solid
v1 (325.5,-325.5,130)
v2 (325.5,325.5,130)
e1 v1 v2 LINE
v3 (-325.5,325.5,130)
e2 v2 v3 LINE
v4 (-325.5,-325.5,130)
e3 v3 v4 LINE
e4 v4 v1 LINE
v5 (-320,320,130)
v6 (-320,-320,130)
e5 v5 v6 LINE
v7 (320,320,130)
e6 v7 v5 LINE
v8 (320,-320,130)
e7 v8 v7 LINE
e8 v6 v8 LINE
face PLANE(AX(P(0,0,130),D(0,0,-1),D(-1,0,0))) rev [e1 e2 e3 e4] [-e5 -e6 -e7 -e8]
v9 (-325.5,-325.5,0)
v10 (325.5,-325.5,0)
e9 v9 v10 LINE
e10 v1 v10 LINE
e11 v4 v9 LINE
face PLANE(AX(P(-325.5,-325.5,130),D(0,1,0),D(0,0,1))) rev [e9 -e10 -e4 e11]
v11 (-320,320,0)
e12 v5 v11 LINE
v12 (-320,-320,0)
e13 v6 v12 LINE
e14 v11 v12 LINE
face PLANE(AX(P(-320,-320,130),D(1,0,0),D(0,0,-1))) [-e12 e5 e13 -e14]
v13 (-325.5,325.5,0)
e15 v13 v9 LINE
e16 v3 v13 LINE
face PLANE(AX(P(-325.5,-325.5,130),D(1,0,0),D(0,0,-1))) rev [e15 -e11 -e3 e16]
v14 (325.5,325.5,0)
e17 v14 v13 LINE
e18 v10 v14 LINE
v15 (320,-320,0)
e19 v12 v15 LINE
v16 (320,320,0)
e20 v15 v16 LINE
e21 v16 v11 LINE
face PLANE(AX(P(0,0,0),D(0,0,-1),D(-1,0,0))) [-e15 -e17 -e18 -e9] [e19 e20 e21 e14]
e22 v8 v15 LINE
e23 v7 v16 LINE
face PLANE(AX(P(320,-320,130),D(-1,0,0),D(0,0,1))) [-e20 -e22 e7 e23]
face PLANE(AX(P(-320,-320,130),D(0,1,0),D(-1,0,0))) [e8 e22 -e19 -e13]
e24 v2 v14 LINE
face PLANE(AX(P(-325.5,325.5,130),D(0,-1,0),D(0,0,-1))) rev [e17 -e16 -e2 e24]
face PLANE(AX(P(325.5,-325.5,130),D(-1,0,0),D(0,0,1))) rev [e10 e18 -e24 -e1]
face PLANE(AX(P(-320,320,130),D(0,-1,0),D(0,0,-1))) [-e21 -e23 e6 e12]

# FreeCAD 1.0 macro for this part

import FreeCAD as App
import Part
import Sketcher
from FreeCAD import Vector
Q = App.Units.Quantity


def add_polygon(sketch, points):
    """Adds a closed chain of lines whose ends are joined by coincident constraints."""
    first, n = sketch.GeometryCount, len(points)
    for a, b in zip(points, points[1:] + points[:1]):
        sketch.addGeometry(Part.LineSegment(App.Vector(*a, 0), App.Vector(*b, 0)), False)
    for i in range(n):
        sketch.addConstraint(Sketcher.Constraint("Coincident", first + i, 2, first + (i + 1) % n, 1))

doc = App.newDocument("Part")
body = doc.addObject("PartDesign::Body", "Body")

# Sketch on XY plane
sketch1 = doc.addObject("Sketcher::SketchObject", "Sketch")
body.addObject(sketch1)
sketch1.AttachmentSupport = (doc.XY_Plane, [""])
sketch1.MapMode = "FlatFace"
add_polygon(sketch1, [(-325.5, 325.5), (-325.5, -325.5), (325.5, -325.5), (325.5, 325.5)])  # lines 0-3
add_polygon(sketch1, [(320, -320), (-320, -320), (-320, 320), (320, 320)])  # lines 4-7
sketch1.addConstraint([
    Sketcher.Constraint("Vertical", 0),
    Sketcher.Constraint("Horizontal", 1),
    Sketcher.Constraint("Vertical", 2),
    Sketcher.Constraint("Horizontal", 3),
    Sketcher.Constraint("Horizontal", 4),
    Sketcher.Constraint("Vertical", 5),
    Sketcher.Constraint("Horizontal", 6),
    Sketcher.Constraint("Vertical", 7),
    Sketcher.Constraint("Symmetric", 0, 2, 2, 2, -1, 1),
    Sketcher.Constraint("Symmetric", 4, 2, 6, 2, -1, 1),
    Sketcher.Constraint("Equal", 3, 0),
    Sketcher.Constraint("Equal", 6, 5),
    Sketcher.Constraint("DistanceX", 1, 1, 1, 2, Q("651 mm")),
    Sketcher.Constraint("DistanceX", 4, 2, 4, 1, Q("640 mm")),
])
pad1 = doc.addObject("PartDesign::Pad", "Pad")
body.addObject(pad1)
pad1.Profile = sketch1
pad1.Length = 130

doc.recompute()
